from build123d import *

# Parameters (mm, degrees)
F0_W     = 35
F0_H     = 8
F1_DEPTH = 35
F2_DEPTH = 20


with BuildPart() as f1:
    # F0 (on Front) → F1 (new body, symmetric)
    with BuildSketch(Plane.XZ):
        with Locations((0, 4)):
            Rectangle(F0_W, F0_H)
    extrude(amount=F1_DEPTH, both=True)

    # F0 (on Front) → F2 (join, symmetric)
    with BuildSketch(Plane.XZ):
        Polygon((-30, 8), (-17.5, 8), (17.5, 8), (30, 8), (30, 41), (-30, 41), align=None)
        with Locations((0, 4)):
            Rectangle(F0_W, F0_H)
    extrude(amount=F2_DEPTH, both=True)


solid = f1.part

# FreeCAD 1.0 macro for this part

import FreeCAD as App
import Part
import Sketcher
Q = App.Units.Quantity

doc = App.newDocument("Part")
params = doc.addObject("Spreadsheet::Sheet", "Params")
for row, (alias, value) in enumerate([
    ("sketch1_width", "35 mm"),
    ("sketch1_height", "8 mm"),
    ("pad1_length", "70 mm"),
    ("sketch2_width", "35 mm"),
    ("sketch2_width2", "60 mm"),
    ("sketch2_height", "8 mm"),
    ("sketch2_height2", "33 mm"),
    ("pad2_length", "40 mm"),
], start=1):
    params.set(f"A{row}", alias)
    params.set(f"B{row}", "=" + value)
    params.setAlias(f"B{row}", alias)

body = doc.addObject("PartDesign::Body", "Body")

sketch1 = doc.addObject("Sketcher::SketchObject", "Sketch")
body.addObject(sketch1)
sketch1.AttachmentSupport = (doc.XZ_Plane, [""])
sketch1.MapMode = "FlatFace"
sketch1.addGeometry([
    Part.LineSegment(App.Vector(-18, 8, 0), App.Vector(-18, 0, 0)),
    Part.LineSegment(App.Vector(-18, 0, 0), App.Vector(18, 0, 0)),
    Part.LineSegment(App.Vector(18, 0, 0), App.Vector(18, 8, 0)),
    Part.LineSegment(App.Vector(18, 8, 0), App.Vector(-18, 8, 0)),
], False)
sketch1.addConstraint([
    Sketcher.Constraint("Coincident", 0, 2, 1, 1),
    Sketcher.Constraint("Coincident", 1, 2, 2, 1),
    Sketcher.Constraint("Coincident", 2, 2, 3, 1),
    Sketcher.Constraint("Coincident", 3, 2, 0, 1),
    Sketcher.Constraint("Vertical", 0),
    Sketcher.Constraint("Horizontal", 1),
    Sketcher.Constraint("Vertical", 2),
    Sketcher.Constraint("Horizontal", 3),
    Sketcher.Constraint("Symmetric", 0, 2, 1, 2, -1, 1),
    Sketcher.Constraint("DistanceX", 1, 1, 1, 2, Q("35 mm")),
    Sketcher.Constraint("DistanceY", 0, 2, 0, 1, Q("8 mm")),
])
sketch1.setExpression("Constraints[9]", "Params.sketch1_width")
sketch1.setExpression("Constraints[10]", "Params.sketch1_height")
pad1 = doc.addObject("PartDesign::Pad", "Pad")
body.addObject(pad1)
pad1.Profile = sketch1
pad1.setExpression("Length", "Params.pad1_length")
pad1.Midplane = True

sketch2 = doc.addObject("Sketcher::SketchObject", "Sketch001")
body.addObject(sketch2)
sketch2.AttachmentSupport = (doc.XZ_Plane, [""])
sketch2.MapMode = "FlatFace"
sketch2.addGeometry([
    Part.LineSegment(App.Vector(-30, 8, 0), App.Vector(-18, 8, 0)),
    Part.LineSegment(App.Vector(-18, 8, 0), App.Vector(-18, 0, 0)),
    Part.LineSegment(App.Vector(-18, 0, 0), App.Vector(18, 0, 0)),
    Part.LineSegment(App.Vector(18, 0, 0), App.Vector(18, 8, 0)),
    Part.LineSegment(App.Vector(18, 8, 0), App.Vector(30, 8, 0)),
    Part.LineSegment(App.Vector(30, 8, 0), App.Vector(30, 41, 0)),
    Part.LineSegment(App.Vector(30, 41, 0), App.Vector(-30, 41, 0)),
    Part.LineSegment(App.Vector(-30, 41, 0), App.Vector(-30, 8, 0)),
], False)
sketch2.addConstraint([
    Sketcher.Constraint("Coincident", 0, 2, 1, 1),
    Sketcher.Constraint("Coincident", 1, 2, 2, 1),
    Sketcher.Constraint("Coincident", 2, 2, 3, 1),
    Sketcher.Constraint("Coincident", 3, 2, 4, 1),
    Sketcher.Constraint("Coincident", 4, 2, 5, 1),
    Sketcher.Constraint("Coincident", 5, 2, 6, 1),
    Sketcher.Constraint("Coincident", 6, 2, 7, 1),
    Sketcher.Constraint("Coincident", 7, 2, 0, 1),
    Sketcher.Constraint("Horizontal", 0),
    Sketcher.Constraint("Vertical", 1),
    Sketcher.Constraint("Horizontal", 2),
    Sketcher.Constraint("Vertical", 3),
    Sketcher.Constraint("Horizontal", 4),
    Sketcher.Constraint("Vertical", 5),
    Sketcher.Constraint("Horizontal", 6),
    Sketcher.Constraint("Vertical", 7),
    Sketcher.Constraint("Symmetric", 1, 2, 2, 2, -1, 1),
    Sketcher.Constraint("Symmetric", 4, 2, 7, 2, -2),
    Sketcher.Constraint("DistanceX", 2, 1, 2, 2, Q("35 mm")),
    Sketcher.Constraint("DistanceX", 6, 2, 6, 1, Q("60 mm")),
    Sketcher.Constraint("DistanceY", 1, 2, 1, 1, Q("8 mm")),
    Sketcher.Constraint("DistanceY", 5, 1, 5, 2, Q("33 mm")),
])
sketch2.setExpression("Constraints[18]", "Params.sketch2_width")
sketch2.setExpression("Constraints[19]", "Params.sketch2_width2")
sketch2.setExpression("Constraints[20]", "Params.sketch2_height")
sketch2.setExpression("Constraints[21]", "Params.sketch2_height2")
pad2 = doc.addObject("PartDesign::Pad", "Pad001")
body.addObject(pad2)
pad2.Profile = sketch2
pad2.setExpression("Length", "Params.pad2_length")
pad2.Midplane = True

doc.recompute()
